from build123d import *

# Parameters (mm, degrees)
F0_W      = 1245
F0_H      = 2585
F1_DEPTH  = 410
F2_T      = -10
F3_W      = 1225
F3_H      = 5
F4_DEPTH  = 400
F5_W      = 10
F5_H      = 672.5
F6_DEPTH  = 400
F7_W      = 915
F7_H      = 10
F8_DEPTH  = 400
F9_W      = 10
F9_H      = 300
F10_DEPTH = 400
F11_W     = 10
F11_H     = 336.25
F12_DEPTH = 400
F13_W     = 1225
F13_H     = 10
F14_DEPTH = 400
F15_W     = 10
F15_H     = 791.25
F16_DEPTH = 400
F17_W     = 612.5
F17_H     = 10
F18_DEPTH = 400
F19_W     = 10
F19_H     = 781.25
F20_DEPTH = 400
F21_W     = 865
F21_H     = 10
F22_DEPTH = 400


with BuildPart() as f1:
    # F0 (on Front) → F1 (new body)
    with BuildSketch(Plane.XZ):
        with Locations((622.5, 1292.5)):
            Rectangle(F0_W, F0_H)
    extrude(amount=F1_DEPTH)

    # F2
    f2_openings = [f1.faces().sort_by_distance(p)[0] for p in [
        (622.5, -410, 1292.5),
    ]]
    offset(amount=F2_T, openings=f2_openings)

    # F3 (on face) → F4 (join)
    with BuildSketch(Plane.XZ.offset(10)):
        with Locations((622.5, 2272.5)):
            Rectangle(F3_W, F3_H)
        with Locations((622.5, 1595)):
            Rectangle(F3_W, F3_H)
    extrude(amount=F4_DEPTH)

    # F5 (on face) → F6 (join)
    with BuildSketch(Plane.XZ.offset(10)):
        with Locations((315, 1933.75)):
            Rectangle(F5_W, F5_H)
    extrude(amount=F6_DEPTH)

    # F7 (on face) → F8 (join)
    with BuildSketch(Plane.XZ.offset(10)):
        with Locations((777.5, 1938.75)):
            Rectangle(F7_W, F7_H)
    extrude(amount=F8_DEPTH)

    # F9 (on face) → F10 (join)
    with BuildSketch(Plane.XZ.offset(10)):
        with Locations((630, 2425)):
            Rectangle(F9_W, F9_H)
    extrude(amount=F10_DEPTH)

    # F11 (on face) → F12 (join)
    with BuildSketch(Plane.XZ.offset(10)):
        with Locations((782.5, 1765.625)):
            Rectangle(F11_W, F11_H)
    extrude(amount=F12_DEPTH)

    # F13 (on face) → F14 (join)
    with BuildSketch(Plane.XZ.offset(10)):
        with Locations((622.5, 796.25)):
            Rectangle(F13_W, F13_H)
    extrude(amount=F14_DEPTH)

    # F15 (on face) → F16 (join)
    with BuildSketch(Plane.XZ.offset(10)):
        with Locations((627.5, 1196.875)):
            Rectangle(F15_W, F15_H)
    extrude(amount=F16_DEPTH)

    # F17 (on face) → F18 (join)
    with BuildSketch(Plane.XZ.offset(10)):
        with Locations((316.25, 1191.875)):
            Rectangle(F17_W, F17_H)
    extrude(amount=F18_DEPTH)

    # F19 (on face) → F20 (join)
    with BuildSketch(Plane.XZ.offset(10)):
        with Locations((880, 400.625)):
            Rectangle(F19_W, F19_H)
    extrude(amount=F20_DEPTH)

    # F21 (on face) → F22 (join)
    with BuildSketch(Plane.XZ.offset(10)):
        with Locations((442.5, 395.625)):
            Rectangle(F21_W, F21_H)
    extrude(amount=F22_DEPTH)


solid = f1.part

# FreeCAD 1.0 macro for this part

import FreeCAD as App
import Part
import Sketcher

V = App.Vector
Q = App.Units.Quantity


def faces_at(feature, points):
    """Names of the faces that lie closest to the given points."""
    faces = feature.Shape.Faces
    near = lambda p: min(range(len(faces)), key=lambda i: faces[i].distToShape(Part.Vertex(*p))[0])
    return sorted({f"Face{near(p) + 1}" for p in points})

doc = App.newDocument("Part")
body = doc.addObject("PartDesign::Body", "Body")

sketch1 = body.newObject("Sketcher::SketchObject", "Sketch")
sketch1.AttachmentSupport = (doc.getObject("XZ_Plane"), [""])
sketch1.MapMode = "FlatFace"
sketch1.addGeometry([
    Part.LineSegment(V(0, 2585, 0), V(0, 0, 0)),
    Part.LineSegment(V(0, 0, 0), V(1245, 0, 0)),
    Part.LineSegment(V(1245, 0, 0), V(1245, 2585, 0)),
    Part.LineSegment(V(1245, 2585, 0), V(0, 2585, 0)),
], False)
sketch1.addConstraint([
    Sketcher.Constraint("Coincident", 0, 2, 1, 1),
    Sketcher.Constraint("Coincident", 1, 2, 2, 1),
    Sketcher.Constraint("Coincident", 2, 2, 3, 1),
    Sketcher.Constraint("Coincident", 3, 2, 0, 1),
    Sketcher.Constraint("Vertical", 0),
    Sketcher.Constraint("Horizontal", 1),
    Sketcher.Constraint("Vertical", 2),
    Sketcher.Constraint("Horizontal", 3),
    Sketcher.Constraint("Coincident", 0, 2, -1, 1),
    Sketcher.Constraint("DistanceX", 1, 1, 1, 2, Q("1245 mm")),
    Sketcher.Constraint("DistanceY", 0, 2, 0, 1, Q("2585 mm")),
])
pad1 = body.newObject("PartDesign::Pad", "Pad")
pad1.Profile = sketch1
pad1.Length = 410
doc.recompute()

thickness = body.newObject("PartDesign::Thickness", "Thickness")
thickness.Base = (pad1, faces_at(pad1, [(622.5, -410, 1292.5)]))
thickness.Value = 10
thickness.Reversed = True
thickness.Join = "Arc"

sketch2 = body.newObject("Sketcher::SketchObject", "Sketch001")
sketch2.AttachmentSupport = (doc.getObject("XZ_Plane"), [""])
sketch2.MapMode = "FlatFace"
sketch2.AttachmentOffset = App.Placement(V(0, 0, 10), App.Rotation())
sketch2.addGeometry([
    Part.LineSegment(V(10, 2275, 0), V(10, 2270, 0)),
    Part.LineSegment(V(10, 2270, 0), V(1235, 2270, 0)),
    Part.LineSegment(V(1235, 2270, 0), V(1235, 2275, 0)),
    Part.LineSegment(V(1235, 2275, 0), V(10, 2275, 0)),
    Part.LineSegment(V(10, 1598, 0), V(10, 1592, 0)),
    Part.LineSegment(V(10, 1592, 0), V(1235, 1592, 0)),
    Part.LineSegment(V(1235, 1592, 0), V(1235, 1598, 0)),
    Part.LineSegment(V(1235, 1598, 0), V(10, 1598, 0)),
], False)
sketch2.addConstraint([
    Sketcher.Constraint("Coincident", 0, 2, 1, 1),
    Sketcher.Constraint("Coincident", 1, 2, 2, 1),
    Sketcher.Constraint("Coincident", 2, 2, 3, 1),
    Sketcher.Constraint("Coincident", 3, 2, 0, 1),
    Sketcher.Constraint("Coincident", 4, 2, 5, 1),
    Sketcher.Constraint("Coincident", 5, 2, 6, 1),
    Sketcher.Constraint("Coincident", 6, 2, 7, 1),
    Sketcher.Constraint("Coincident", 7, 2, 4, 1),
    Sketcher.Constraint("Vertical", 0),
    Sketcher.Constraint("Horizontal", 1),
    Sketcher.Constraint("Vertical", 2),
    Sketcher.Constraint("Horizontal", 3),
    Sketcher.Constraint("Vertical", 4),
    Sketcher.Constraint("Horizontal", 5),
    Sketcher.Constraint("Vertical", 6),
    Sketcher.Constraint("Horizontal", 7),
    Sketcher.Constraint("Vertical", 3, 2, 4, 2),
    Sketcher.Constraint("Vertical", 2, 2, 5, 2),
    Sketcher.Constraint("Equal", 2, 4),
    Sketcher.Constraint("DistanceX", 1, 1, 1, 2, Q("1225 mm")),
    Sketcher.Constraint("DistanceY", 0, 2, 0, 1, Q("5 mm")),
    Sketcher.Constraint("DistanceX", -1, 1, 0, 2, Q("10 mm")),
    Sketcher.Constraint("DistanceY", -1, 1, 0, 2, Q("2270 mm")),
    Sketcher.Constraint("DistanceY", -1, 1, 4, 2, Q("1592.5 mm")),
])
pad2 = body.newObject("PartDesign::Pad", "Pad001")
pad2.Profile = sketch2
pad2.Length = 400

sketch3 = body.newObject("Sketcher::SketchObject", "Sketch002")
sketch3.AttachmentSupport = (doc.getObject("XZ_Plane"), [""])
sketch3.MapMode = "FlatFace"
sketch3.AttachmentOffset = App.Placement(V(0, 0, 10), App.Rotation())
sketch3.addGeometry([
    Part.LineSegment(V(310, 2270, 0), V(310, 1598, 0)),
    Part.LineSegment(V(310, 1598, 0), V(320, 1598, 0)),
    Part.LineSegment(V(320, 1598, 0), V(320, 2270, 0)),
    Part.LineSegment(V(320, 2270, 0), V(310, 2270, 0)),
], False)
sketch3.addConstraint([
    Sketcher.Constraint("Coincident", 0, 2, 1, 1),
    Sketcher.Constraint("Coincident", 1, 2, 2, 1),
    Sketcher.Constraint("Coincident", 2, 2, 3, 1),
    Sketcher.Constraint("Coincident", 3, 2, 0, 1),
    Sketcher.Constraint("Vertical", 0),
    Sketcher.Constraint("Horizontal", 1),
    Sketcher.Constraint("Vertical", 2),
    Sketcher.Constraint("Horizontal", 3),
    Sketcher.Constraint("DistanceX", 1, 1, 1, 2, Q("10 mm")),
    Sketcher.Constraint("DistanceY", 0, 2, 0, 1, Q("672.5 mm")),
    Sketcher.Constraint("DistanceX", -1, 1, 0, 2, Q("310 mm")),
    Sketcher.Constraint("DistanceY", -1, 1, 2, 2, Q("2270 mm")),
])
pad3 = body.newObject("PartDesign::Pad", "Pad002")
pad3.Profile = sketch3
pad3.Length = 400

sketch4 = body.newObject("Sketcher::SketchObject", "Sketch003")
sketch4.AttachmentSupport = (doc.getObject("XZ_Plane"), [""])
sketch4.MapMode = "FlatFace"
sketch4.AttachmentOffset = App.Placement(V(0, 0, 10), App.Rotation())
sketch4.addGeometry([
    Part.LineSegment(V(320, 1944, 0), V(320, 1934, 0)),
    Part.LineSegment(V(320, 1934, 0), V(1235, 1934, 0)),
    Part.LineSegment(V(1235, 1934, 0), V(1235, 1944, 0)),
    Part.LineSegment(V(1235, 1944, 0), V(320, 1944, 0)),
], False)
sketch4.addConstraint([
    Sketcher.Constraint("Coincident", 0, 2, 1, 1),
    Sketcher.Constraint("Coincident", 1, 2, 2, 1),
    Sketcher.Constraint("Coincident", 2, 2, 3, 1),
    Sketcher.Constraint("Coincident", 3, 2, 0, 1),
    Sketcher.Constraint("Vertical", 0),
    Sketcher.Constraint("Horizontal", 1),
    Sketcher.Constraint("Vertical", 2),
    Sketcher.Constraint("Horizontal", 3),
    Sketcher.Constraint("DistanceX", 1, 1, 1, 2, Q("915 mm")),
    Sketcher.Constraint("DistanceY", 0, 2, 0, 1, Q("10 mm")),
    Sketcher.Constraint("DistanceX", -1, 1, 0, 2, Q("320 mm")),
    Sketcher.Constraint("DistanceY", -1, 1, 0, 2, Q("1933.75 mm")),
])
pad4 = body.newObject("PartDesign::Pad", "Pad003")
pad4.Profile = sketch4
pad4.Length = 400

sketch5 = body.newObject("Sketcher::SketchObject", "Sketch004")
sketch5.AttachmentSupport = (doc.getObject("XZ_Plane"), [""])
sketch5.MapMode = "FlatFace"
sketch5.AttachmentOffset = App.Placement(V(0, 0, 10), App.Rotation())
sketch5.addGeometry([
    Part.LineSegment(V(625, 2575, 0), V(625, 2275, 0)),
    Part.LineSegment(V(625, 2275, 0), V(635, 2275, 0)),
    Part.LineSegment(V(635, 2275, 0), V(635, 2575, 0)),
    Part.LineSegment(V(635, 2575, 0), V(625, 2575, 0)),
], False)
sketch5.addConstraint([
    Sketcher.Constraint("Coincident", 0, 2, 1, 1),
    Sketcher.Constraint("Coincident", 1, 2, 2, 1),
    Sketcher.Constraint("Coincident", 2, 2, 3, 1),
    Sketcher.Constraint("Coincident", 3, 2, 0, 1),
    Sketcher.Constraint("Vertical", 0),
    Sketcher.Constraint("Horizontal", 1),
    Sketcher.Constraint("Vertical", 2),
    Sketcher.Constraint("Horizontal", 3),
    Sketcher.Constraint("DistanceX", 1, 1, 1, 2, Q("10 mm")),
    Sketcher.Constraint("DistanceY", 0, 2, 0, 1, Q("300 mm")),
    Sketcher.Constraint("DistanceX", -1, 1, 0, 2, Q("625 mm")),
    Sketcher.Constraint("DistanceY", -1, 1, 0, 2, Q("2275 mm")),
])
pad5 = body.newObject("PartDesign::Pad", "Pad004")
pad5.Profile = sketch5
pad5.Length = 400

sketch6 = body.newObject("Sketcher::SketchObject", "Sketch005")
sketch6.AttachmentSupport = (doc.getObject("XZ_Plane"), [""])
sketch6.MapMode = "FlatFace"
sketch6.AttachmentOffset = App.Placement(V(0, 0, 10), App.Rotation())
sketch6.addGeometry([
    Part.LineSegment(V(778, 1934, 0), V(778, 1598, 0)),
    Part.LineSegment(V(778, 1598, 0), V(788, 1598, 0)),
    Part.LineSegment(V(788, 1598, 0), V(788, 1934, 0)),
    Part.LineSegment(V(788, 1934, 0), V(778, 1934, 0)),
], False)
sketch6.addConstraint([
    Sketcher.Constraint("Coincident", 0, 2, 1, 1),
    Sketcher.Constraint("Coincident", 1, 2, 2, 1),
    Sketcher.Constraint("Coincident", 2, 2, 3, 1),
    Sketcher.Constraint("Coincident", 3, 2, 0, 1),
    Sketcher.Constraint("Vertical", 0),
    Sketcher.Constraint("Horizontal", 1),
    Sketcher.Constraint("Vertical", 2),
    Sketcher.Constraint("Horizontal", 3),
    Sketcher.Constraint("DistanceX", 1, 1, 1, 2, Q("10 mm")),
    Sketcher.Constraint("DistanceY", 0, 2, 0, 1, Q("336.25 mm")),
    Sketcher.Constraint("DistanceX", -1, 1, 0, 2, Q("777.5 mm")),
    Sketcher.Constraint("DistanceY", -1, 1, 0, 2, Q("1597.5 mm")),
])
pad6 = body.newObject("PartDesign::Pad", "Pad005")
pad6.Profile = sketch6
pad6.Length = 400

sketch7 = body.newObject("Sketcher::SketchObject", "Sketch006")
sketch7.AttachmentSupport = (doc.getObject("XZ_Plane"), [""])
sketch7.MapMode = "FlatFace"
sketch7.AttachmentOffset = App.Placement(V(0, 0, 10), App.Rotation())
sketch7.addGeometry([
    Part.LineSegment(V(10, 801, 0), V(10, 791, 0)),
    Part.LineSegment(V(10, 791, 0), V(1235, 791, 0)),
    Part.LineSegment(V(1235, 791, 0), V(1235, 801, 0)),
    Part.LineSegment(V(1235, 801, 0), V(10, 801, 0)),
], False)
sketch7.addConstraint([
    Sketcher.Constraint("Coincident", 0, 2, 1, 1),
    Sketcher.Constraint("Coincident", 1, 2, 2, 1),
    Sketcher.Constraint("Coincident", 2, 2, 3, 1),
    Sketcher.Constraint("Coincident", 3, 2, 0, 1),
    Sketcher.Constraint("Vertical", 0),
    Sketcher.Constraint("Horizontal", 1),
    Sketcher.Constraint("Vertical", 2),
    Sketcher.Constraint("Horizontal", 3),
    Sketcher.Constraint("DistanceX", 1, 1, 1, 2, Q("1225 mm")),
    Sketcher.Constraint("DistanceY", 0, 2, 0, 1, Q("10 mm")),
    Sketcher.Constraint("DistanceX", -1, 1, 0, 2, Q("10 mm")),
    Sketcher.Constraint("DistanceY", -1, 1, 0, 2, Q("791.25 mm")),
])
pad7 = body.newObject("PartDesign::Pad", "Pad006")
pad7.Profile = sketch7
pad7.Length = 400

sketch8 = body.newObject("Sketcher::SketchObject", "Sketch007")
sketch8.AttachmentSupport = (doc.getObject("XZ_Plane"), [""])
sketch8.MapMode = "FlatFace"
sketch8.AttachmentOffset = App.Placement(V(0, 0, 10), App.Rotation())
sketch8.addGeometry([
    Part.LineSegment(V(622, 1592, 0), V(622, 801, 0)),
    Part.LineSegment(V(622, 801, 0), V(632, 801, 0)),
    Part.LineSegment(V(632, 801, 0), V(632, 1592, 0)),
    Part.LineSegment(V(632, 1592, 0), V(622, 1592, 0)),
], False)
sketch8.addConstraint([
    Sketcher.Constraint("Coincident", 0, 2, 1, 1),
    Sketcher.Constraint("Coincident", 1, 2, 2, 1),
    Sketcher.Constraint("Coincident", 2, 2, 3, 1),
    Sketcher.Constraint("Coincident", 3, 2, 0, 1),
    Sketcher.Constraint("Vertical", 0),
    Sketcher.Constraint("Horizontal", 1),
    Sketcher.Constraint("Vertical", 2),
    Sketcher.Constraint("Horizontal", 3),
    Sketcher.Constraint("DistanceX", 1, 1, 1, 2, Q("10 mm")),
    Sketcher.Constraint("DistanceY", 0, 2, 0, 1, Q("791.25 mm")),
    Sketcher.Constraint("DistanceX", -1, 1, 0, 2, Q("622.5 mm")),
    Sketcher.Constraint("DistanceY", -1, 1, 2, 2, Q("1592.5 mm")),
])
pad8 = body.newObject("PartDesign::Pad", "Pad007")
pad8.Profile = sketch8
pad8.Length = 400

sketch9 = body.newObject("Sketcher::SketchObject", "Sketch008")
sketch9.AttachmentSupport = (doc.getObject("XZ_Plane"), [""])
sketch9.MapMode = "FlatFace"
sketch9.AttachmentOffset = App.Placement(V(0, 0, 10), App.Rotation())
sketch9.addGeometry([
    Part.LineSegment(V(10, 1197, 0), V(10, 1187, 0)),
    Part.LineSegment(V(10, 1187, 0), V(622, 1187, 0)),
    Part.LineSegment(V(622, 1187, 0), V(622, 1197, 0)),
    Part.LineSegment(V(622, 1197, 0), V(10, 1197, 0)),
], False)
sketch9.addConstraint([
    Sketcher.Constraint("Coincident", 0, 2, 1, 1),
    Sketcher.Constraint("Coincident", 1, 2, 2, 1),
    Sketcher.Constraint("Coincident", 2, 2, 3, 1),
    Sketcher.Constraint("Coincident", 3, 2, 0, 1),
    Sketcher.Constraint("Vertical", 0),
    Sketcher.Constraint("Horizontal", 1),
    Sketcher.Constraint("Vertical", 2),
    Sketcher.Constraint("Horizontal", 3),
    Sketcher.Constraint("DistanceY", 0, 2, 0, 1, Q("10 mm")),
    Sketcher.Constraint("DistanceX", 1, 1, 1, 2, Q("612.5 mm")),
    Sketcher.Constraint("DistanceX", -1, 1, 0, 2, Q("10 mm")),
    Sketcher.Constraint("DistanceY", -1, 1, 0, 2, Q("1186.875 mm")),
])
pad9 = body.newObject("PartDesign::Pad", "Pad008")
pad9.Profile = sketch9
pad9.Length = 400

sketch10 = body.newObject("Sketcher::SketchObject", "Sketch009")
sketch10.AttachmentSupport = (doc.getObject("XZ_Plane"), [""])
sketch10.MapMode = "FlatFace"
sketch10.AttachmentOffset = App.Placement(V(0, 0, 10), App.Rotation())
sketch10.addGeometry([
    Part.LineSegment(V(875, 791, 0), V(875, 10, 0)),
    Part.LineSegment(V(875, 10, 0), V(885, 10, 0)),
    Part.LineSegment(V(885, 10, 0), V(885, 791, 0)),
    Part.LineSegment(V(885, 791, 0), V(875, 791, 0)),
], False)
sketch10.addConstraint([
    Sketcher.Constraint("Coincident", 0, 2, 1, 1),
    Sketcher.Constraint("Coincident", 1, 2, 2, 1),
    Sketcher.Constraint("Coincident", 2, 2, 3, 1),
    Sketcher.Constraint("Coincident", 3, 2, 0, 1),
    Sketcher.Constraint("Vertical", 0),
    Sketcher.Constraint("Horizontal", 1),
    Sketcher.Constraint("Vertical", 2),
    Sketcher.Constraint("Horizontal", 3),
    Sketcher.Constraint("DistanceX", 1, 1, 1, 2, Q("10 mm")),
    Sketcher.Constraint("DistanceX", -1, 1, 0, 2, Q("875 mm")),
    Sketcher.Constraint("DistanceY", -1, 1, 0, 2, Q("10 mm")),
    Sketcher.Constraint("DistanceY", 0, 2, 0, 1, Q("781.25 mm")),
])
pad10 = body.newObject("PartDesign::Pad", "Pad009")
pad10.Profile = sketch10
pad10.Length = 400

sketch11 = body.newObject("Sketcher::SketchObject", "Sketch010")
sketch11.AttachmentSupport = (doc.getObject("XZ_Plane"), [""])
sketch11.MapMode = "FlatFace"
sketch11.AttachmentOffset = App.Placement(V(0, 0, 10), App.Rotation())
sketch11.addGeometry([
    Part.LineSegment(V(10, 401, 0), V(10, 391, 0)),
    Part.LineSegment(V(10, 391, 0), V(875, 391, 0)),
    Part.LineSegment(V(875, 391, 0), V(875, 401, 0)),
    Part.LineSegment(V(875, 401, 0), V(10, 401, 0)),
], False)
sketch11.addConstraint([
    Sketcher.Constraint("Coincident", 0, 2, 1, 1),
    Sketcher.Constraint("Coincident", 1, 2, 2, 1),
    Sketcher.Constraint("Coincident", 2, 2, 3, 1),
    Sketcher.Constraint("Coincident", 3, 2, 0, 1),
    Sketcher.Constraint("Vertical", 0),
    Sketcher.Constraint("Horizontal", 1),
    Sketcher.Constraint("Vertical", 2),
    Sketcher.Constraint("Horizontal", 3),
    Sketcher.Constraint("DistanceX", 1, 1, 1, 2, Q("865 mm")),
    Sketcher.Constraint("DistanceY", 0, 2, 0, 1, Q("10 mm")),
    Sketcher.Constraint("DistanceX", -1, 1, 0, 2, Q("10 mm")),
    Sketcher.Constraint("DistanceY", -1, 1, 0, 2, Q("390.625 mm")),
])
pad11 = body.newObject("PartDesign::Pad", "Pad010")
pad11.Profile = sketch11
pad11.Length = 400

doc.recompute()
